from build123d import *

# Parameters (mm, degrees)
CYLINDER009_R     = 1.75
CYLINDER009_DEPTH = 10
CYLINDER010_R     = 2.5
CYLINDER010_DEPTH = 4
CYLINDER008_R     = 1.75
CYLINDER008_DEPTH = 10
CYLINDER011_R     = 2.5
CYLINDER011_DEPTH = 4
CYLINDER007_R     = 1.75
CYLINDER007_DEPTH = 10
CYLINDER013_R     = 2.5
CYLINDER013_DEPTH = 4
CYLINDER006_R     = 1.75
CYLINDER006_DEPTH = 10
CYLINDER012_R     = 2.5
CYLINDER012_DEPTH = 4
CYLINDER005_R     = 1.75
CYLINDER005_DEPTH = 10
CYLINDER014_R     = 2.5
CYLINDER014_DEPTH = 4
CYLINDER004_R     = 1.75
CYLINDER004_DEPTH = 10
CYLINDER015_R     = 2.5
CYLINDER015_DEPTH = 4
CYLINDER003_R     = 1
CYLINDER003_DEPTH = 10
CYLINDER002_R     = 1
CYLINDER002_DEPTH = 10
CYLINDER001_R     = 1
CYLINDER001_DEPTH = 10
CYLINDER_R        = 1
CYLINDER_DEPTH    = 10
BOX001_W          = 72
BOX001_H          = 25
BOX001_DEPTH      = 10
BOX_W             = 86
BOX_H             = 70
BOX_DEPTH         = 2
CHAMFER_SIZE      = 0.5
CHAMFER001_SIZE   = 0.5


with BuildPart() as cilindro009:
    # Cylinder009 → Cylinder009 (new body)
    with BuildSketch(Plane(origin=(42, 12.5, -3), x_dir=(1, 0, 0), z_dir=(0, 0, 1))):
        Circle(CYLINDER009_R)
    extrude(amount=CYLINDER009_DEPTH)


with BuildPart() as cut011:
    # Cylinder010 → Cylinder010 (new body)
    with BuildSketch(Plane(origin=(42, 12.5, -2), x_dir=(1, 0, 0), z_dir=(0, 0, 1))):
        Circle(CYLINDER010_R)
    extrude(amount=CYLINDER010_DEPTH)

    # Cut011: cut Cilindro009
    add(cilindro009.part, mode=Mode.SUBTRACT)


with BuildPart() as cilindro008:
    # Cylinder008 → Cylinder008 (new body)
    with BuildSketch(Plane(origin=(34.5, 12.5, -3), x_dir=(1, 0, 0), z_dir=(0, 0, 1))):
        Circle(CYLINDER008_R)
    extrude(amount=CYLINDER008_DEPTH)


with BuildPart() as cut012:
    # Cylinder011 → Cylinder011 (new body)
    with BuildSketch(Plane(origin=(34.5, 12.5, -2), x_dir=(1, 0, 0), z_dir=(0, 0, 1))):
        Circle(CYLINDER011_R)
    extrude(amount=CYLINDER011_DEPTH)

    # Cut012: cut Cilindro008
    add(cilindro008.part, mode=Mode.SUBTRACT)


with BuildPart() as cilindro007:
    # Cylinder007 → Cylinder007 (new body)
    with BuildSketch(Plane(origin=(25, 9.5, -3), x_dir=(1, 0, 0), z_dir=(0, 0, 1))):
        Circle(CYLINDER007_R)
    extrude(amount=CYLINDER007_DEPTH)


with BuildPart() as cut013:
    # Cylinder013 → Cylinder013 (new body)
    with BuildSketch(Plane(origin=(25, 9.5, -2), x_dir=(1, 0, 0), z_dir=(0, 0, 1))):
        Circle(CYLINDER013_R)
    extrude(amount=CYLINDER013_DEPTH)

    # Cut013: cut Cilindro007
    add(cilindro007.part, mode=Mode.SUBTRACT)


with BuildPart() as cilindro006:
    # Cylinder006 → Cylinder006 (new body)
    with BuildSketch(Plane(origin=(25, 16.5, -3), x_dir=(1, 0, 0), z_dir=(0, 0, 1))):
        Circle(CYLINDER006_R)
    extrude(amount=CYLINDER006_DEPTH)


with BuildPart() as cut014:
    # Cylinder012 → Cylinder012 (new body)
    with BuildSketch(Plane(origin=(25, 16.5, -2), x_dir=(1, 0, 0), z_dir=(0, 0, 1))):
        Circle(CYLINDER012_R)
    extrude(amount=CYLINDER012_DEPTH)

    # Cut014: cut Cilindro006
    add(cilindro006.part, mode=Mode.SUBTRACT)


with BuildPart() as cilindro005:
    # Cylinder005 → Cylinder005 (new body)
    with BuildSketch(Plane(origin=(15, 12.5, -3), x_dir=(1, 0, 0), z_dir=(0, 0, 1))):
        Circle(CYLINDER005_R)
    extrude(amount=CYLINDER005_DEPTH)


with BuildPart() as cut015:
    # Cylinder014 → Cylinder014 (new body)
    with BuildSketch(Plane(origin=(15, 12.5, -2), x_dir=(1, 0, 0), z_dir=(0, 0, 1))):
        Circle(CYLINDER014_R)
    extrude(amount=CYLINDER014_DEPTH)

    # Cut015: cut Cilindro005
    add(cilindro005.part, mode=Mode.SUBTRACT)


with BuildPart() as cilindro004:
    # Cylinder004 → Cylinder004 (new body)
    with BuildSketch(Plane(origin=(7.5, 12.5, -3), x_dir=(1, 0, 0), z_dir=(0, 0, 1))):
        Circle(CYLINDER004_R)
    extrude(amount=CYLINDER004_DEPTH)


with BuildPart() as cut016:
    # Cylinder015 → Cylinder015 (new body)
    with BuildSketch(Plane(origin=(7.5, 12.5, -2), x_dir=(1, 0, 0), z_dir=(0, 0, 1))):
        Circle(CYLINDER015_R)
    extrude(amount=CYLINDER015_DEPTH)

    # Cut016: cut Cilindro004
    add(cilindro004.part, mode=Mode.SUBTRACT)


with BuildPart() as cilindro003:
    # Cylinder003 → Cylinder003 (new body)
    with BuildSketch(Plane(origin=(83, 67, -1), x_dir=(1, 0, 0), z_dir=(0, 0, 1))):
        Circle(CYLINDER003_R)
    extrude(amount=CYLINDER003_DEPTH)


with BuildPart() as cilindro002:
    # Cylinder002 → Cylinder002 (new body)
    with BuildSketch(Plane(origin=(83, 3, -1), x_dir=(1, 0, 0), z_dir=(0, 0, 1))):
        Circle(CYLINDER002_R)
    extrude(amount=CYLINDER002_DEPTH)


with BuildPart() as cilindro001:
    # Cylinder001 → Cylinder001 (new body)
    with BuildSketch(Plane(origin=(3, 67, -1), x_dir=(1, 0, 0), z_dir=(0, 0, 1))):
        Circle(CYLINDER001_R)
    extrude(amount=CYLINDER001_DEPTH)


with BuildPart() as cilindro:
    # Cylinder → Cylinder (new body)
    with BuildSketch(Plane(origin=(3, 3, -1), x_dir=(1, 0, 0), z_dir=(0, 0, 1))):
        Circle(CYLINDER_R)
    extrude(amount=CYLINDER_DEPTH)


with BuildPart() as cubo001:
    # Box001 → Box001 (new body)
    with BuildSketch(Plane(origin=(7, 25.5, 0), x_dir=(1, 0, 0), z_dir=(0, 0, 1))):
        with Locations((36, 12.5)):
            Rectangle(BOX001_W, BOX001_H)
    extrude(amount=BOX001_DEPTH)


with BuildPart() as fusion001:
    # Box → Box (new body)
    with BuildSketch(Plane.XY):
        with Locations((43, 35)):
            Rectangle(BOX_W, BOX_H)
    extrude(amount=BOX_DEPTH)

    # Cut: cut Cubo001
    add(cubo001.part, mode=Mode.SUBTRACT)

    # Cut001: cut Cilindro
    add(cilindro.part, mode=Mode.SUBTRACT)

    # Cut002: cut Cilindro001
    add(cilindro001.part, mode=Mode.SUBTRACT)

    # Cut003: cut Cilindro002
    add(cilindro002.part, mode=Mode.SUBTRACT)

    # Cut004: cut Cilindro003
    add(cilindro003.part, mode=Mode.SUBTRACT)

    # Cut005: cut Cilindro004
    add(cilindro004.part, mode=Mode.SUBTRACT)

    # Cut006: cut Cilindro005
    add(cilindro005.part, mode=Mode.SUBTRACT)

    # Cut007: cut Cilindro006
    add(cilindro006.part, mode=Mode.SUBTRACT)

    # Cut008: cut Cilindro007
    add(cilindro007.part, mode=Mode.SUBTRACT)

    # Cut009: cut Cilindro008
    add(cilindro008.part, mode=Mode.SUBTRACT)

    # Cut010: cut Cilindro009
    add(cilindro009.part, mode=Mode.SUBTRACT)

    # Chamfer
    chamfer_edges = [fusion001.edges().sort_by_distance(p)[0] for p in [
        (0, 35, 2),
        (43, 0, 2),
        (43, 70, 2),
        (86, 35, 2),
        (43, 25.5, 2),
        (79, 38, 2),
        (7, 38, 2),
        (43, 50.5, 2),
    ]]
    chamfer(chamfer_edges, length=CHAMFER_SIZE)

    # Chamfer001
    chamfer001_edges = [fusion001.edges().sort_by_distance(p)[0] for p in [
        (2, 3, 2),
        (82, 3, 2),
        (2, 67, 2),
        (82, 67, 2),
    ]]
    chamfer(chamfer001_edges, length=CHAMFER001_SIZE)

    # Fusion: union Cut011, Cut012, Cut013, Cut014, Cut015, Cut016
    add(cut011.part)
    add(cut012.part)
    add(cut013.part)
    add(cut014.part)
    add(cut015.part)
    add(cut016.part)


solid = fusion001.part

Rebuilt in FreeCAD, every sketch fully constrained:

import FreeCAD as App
import Part
import Sketcher

V = App.Vector


def edges_at(feature, points):
    """Names of the edges that pass closest to the given points."""
    edges = feature.Shape.Edges
    near = lambda p: min(range(len(edges)), key=lambda i: edges[i].distToShape(Part.Vertex(*p))[0])
    return sorted({f"Edge{near(p) + 1}" for p in points})


def add_polygon(sketch, points):
    """Adds a closed chain of lines whose ends are joined by coincident constraints."""
    first, n = sketch.GeometryCount, len(points)
    for a, b in zip(points, points[1:] + points[:1]):
        sketch.addGeometry(Part.LineSegment(App.Vector(*a, 0), App.Vector(*b, 0)), False)
    for i in range(n):
        sketch.addConstraint(Sketcher.Constraint("Coincident", first + i, 2, first + (i + 1) % n, 1))

doc = App.newDocument("Part")
body = doc.addObject("PartDesign::Body", "Body")

sketch1 = body.newObject("Sketcher::SketchObject", "Sketch")
sketch1.AttachmentSupport = (doc.getObject("XY_Plane"), [""])
sketch1.MapMode = "FlatFace"
sketch1.AttachmentOffset = App.Placement(V(0, 0, -3), App.Rotation())
sketch1.addGeometry(Part.Circle(V(42, 12.5, 0), V(0, 0, 1), 1.8), False)
sketch1.addConstraint(Sketcher.Constraint("Diameter", 0, 3.5))
sketch1.addConstraint(Sketcher.Constraint("DistanceX", -1, 1, 0, 3, 42.0))
sketch1.addConstraint(Sketcher.Constraint("DistanceY", -1, 1, 0, 3, 12.5))
pad1 = body.newObject("PartDesign::Pad", "Pad")
pad1.Profile = sketch1
pad1.Length = 10
body2 = doc.addObject("PartDesign::Body", "Body001")

sketch2 = body2.newObject("Sketcher::SketchObject", "Sketch001")
sketch2.AttachmentSupport = (doc.getObject("XY_Plane001"), [""])
sketch2.MapMode = "FlatFace"
sketch2.AttachmentOffset = App.Placement(V(0, 0, -2), App.Rotation())
sketch2.addGeometry(Part.Circle(V(42, 12.5, 0), V(0, 0, 1), 2.5), False)
sketch2.addConstraint(Sketcher.Constraint("Diameter", 0, 5.0))
sketch2.addConstraint(Sketcher.Constraint("DistanceX", -1, 1, 0, 3, 42.0))
sketch2.addConstraint(Sketcher.Constraint("DistanceY", -1, 1, 0, 3, 12.5))
pad2 = body2.newObject("PartDesign::Pad", "Pad001")
pad2.Profile = sketch2
pad2.Length = 4
doc.recompute()

body3 = doc.addObject("PartDesign::Body", "Body002")
body3.BaseFeature = body
boolean = body2.newObject("PartDesign::Boolean", "Boolean")
boolean.Type = "Cut"
boolean.addObjects([body3])
doc.recompute()
body4 = doc.addObject("PartDesign::Body", "Body003")

sketch3 = body4.newObject("Sketcher::SketchObject", "Sketch002")
sketch3.AttachmentSupport = (doc.getObject("XY_Plane003"), [""])
sketch3.MapMode = "FlatFace"
sketch3.AttachmentOffset = App.Placement(V(0, 0, -3), App.Rotation())
sketch3.addGeometry(Part.Circle(V(34.5, 12.5, 0), V(0, 0, 1), 1.8), False)
sketch3.addConstraint(Sketcher.Constraint("Diameter", 0, 3.5))
sketch3.addConstraint(Sketcher.Constraint("DistanceX", -1, 1, 0, 3, 34.5))
sketch3.addConstraint(Sketcher.Constraint("DistanceY", -1, 1, 0, 3, 12.5))
pad3 = body4.newObject("PartDesign::Pad", "Pad002")
pad3.Profile = sketch3
pad3.Length = 10
body5 = doc.addObject("PartDesign::Body", "Body004")

sketch4 = body5.newObject("Sketcher::SketchObject", "Sketch003")
sketch4.AttachmentSupport = (doc.getObject("XY_Plane004"), [""])
sketch4.MapMode = "FlatFace"
sketch4.AttachmentOffset = App.Placement(V(0, 0, -2), App.Rotation())
sketch4.addGeometry(Part.Circle(V(34.5, 12.5, 0), V(0, 0, 1), 2.5), False)
sketch4.addConstraint(Sketcher.Constraint("Diameter", 0, 5.0))
sketch4.addConstraint(Sketcher.Constraint("DistanceX", -1, 1, 0, 3, 34.5))
sketch4.addConstraint(Sketcher.Constraint("DistanceY", -1, 1, 0, 3, 12.5))
pad4 = body5.newObject("PartDesign::Pad", "Pad003")
pad4.Profile = sketch4
pad4.Length = 4
doc.recompute()

body6 = doc.addObject("PartDesign::Body", "Body005")
body6.BaseFeature = body4
boolean2 = body5.newObject("PartDesign::Boolean", "Boolean001")
boolean2.Type = "Cut"
boolean2.addObjects([body6])
doc.recompute()
body7 = doc.addObject("PartDesign::Body", "Body006")

sketch5 = body7.newObject("Sketcher::SketchObject", "Sketch004")
sketch5.AttachmentSupport = (doc.getObject("XY_Plane006"), [""])
sketch5.MapMode = "FlatFace"
sketch5.AttachmentOffset = App.Placement(V(0, 0, -3), App.Rotation())
sketch5.addGeometry(Part.Circle(V(25, 9.5, 0), V(0, 0, 1), 1.8), False)
sketch5.addConstraint(Sketcher.Constraint("Diameter", 0, 3.5))
sketch5.addConstraint(Sketcher.Constraint("DistanceX", -1, 1, 0, 3, 25.0))
sketch5.addConstraint(Sketcher.Constraint("DistanceY", -1, 1, 0, 3, 9.5))
pad5 = body7.newObject("PartDesign::Pad", "Pad004")
pad5.Profile = sketch5
pad5.Length = 10
body8 = doc.addObject("PartDesign::Body", "Body007")

sketch6 = body8.newObject("Sketcher::SketchObject", "Sketch005")
sketch6.AttachmentSupport = (doc.getObject("XY_Plane007"), [""])
sketch6.MapMode = "FlatFace"
sketch6.AttachmentOffset = App.Placement(V(0, 0, -2), App.Rotation())
sketch6.addGeometry(Part.Circle(V(25, 9.5, 0), V(0, 0, 1), 2.5), False)
sketch6.addConstraint(Sketcher.Constraint("Diameter", 0, 5.0))
sketch6.addConstraint(Sketcher.Constraint("DistanceX", -1, 1, 0, 3, 25.0))
sketch6.addConstraint(Sketcher.Constraint("DistanceY", -1, 1, 0, 3, 9.5))
pad6 = body8.newObject("PartDesign::Pad", "Pad005")
pad6.Profile = sketch6
pad6.Length = 4
doc.recompute()

body9 = doc.addObject("PartDesign::Body", "Body008")
body9.BaseFeature = body7
boolean3 = body8.newObject("PartDesign::Boolean", "Boolean002")
boolean3.Type = "Cut"
boolean3.addObjects([body9])
doc.recompute()
body10 = doc.addObject("PartDesign::Body", "Body009")

sketch7 = body10.newObject("Sketcher::SketchObject", "Sketch006")
sketch7.AttachmentSupport = (doc.getObject("XY_Plane009"), [""])
sketch7.MapMode = "FlatFace"
sketch7.AttachmentOffset = App.Placement(V(0, 0, -3), App.Rotation())
sketch7.addGeometry(Part.Circle(V(25, 16.5, 0), V(0, 0, 1), 1.8), False)
sketch7.addConstraint(Sketcher.Constraint("Diameter", 0, 3.5))
sketch7.addConstraint(Sketcher.Constraint("DistanceX", -1, 1, 0, 3, 25.0))
sketch7.addConstraint(Sketcher.Constraint("DistanceY", -1, 1, 0, 3, 16.5))
pad7 = body10.newObject("PartDesign::Pad", "Pad006")
pad7.Profile = sketch7
pad7.Length = 10
body11 = doc.addObject("PartDesign::Body", "Body010")

sketch8 = body11.newObject("Sketcher::SketchObject", "Sketch007")
sketch8.AttachmentSupport = (doc.getObject("XY_Plane010"), [""])
sketch8.MapMode = "FlatFace"
sketch8.AttachmentOffset = App.Placement(V(0, 0, -2), App.Rotation())
sketch8.addGeometry(Part.Circle(V(25, 16.5, 0), V(0, 0, 1), 2.5), False)
sketch8.addConstraint(Sketcher.Constraint("Diameter", 0, 5.0))
sketch8.addConstraint(Sketcher.Constraint("DistanceX", -1, 1, 0, 3, 25.0))
sketch8.addConstraint(Sketcher.Constraint("DistanceY", -1, 1, 0, 3, 16.5))
pad8 = body11.newObject("PartDesign::Pad", "Pad007")
pad8.Profile = sketch8
pad8.Length = 4
doc.recompute()

body12 = doc.addObject("PartDesign::Body", "Body011")
body12.BaseFeature = body10
boolean4 = body11.newObject("PartDesign::Boolean", "Boolean003")
boolean4.Type = "Cut"
boolean4.addObjects([body12])
doc.recompute()
body13 = doc.addObject("PartDesign::Body", "Body012")

sketch9 = body13.newObject("Sketcher::SketchObject", "Sketch008")
sketch9.AttachmentSupport = (doc.getObject("XY_Plane012"), [""])
sketch9.MapMode = "FlatFace"
sketch9.AttachmentOffset = App.Placement(V(0, 0, -3), App.Rotation())
sketch9.addGeometry(Part.Circle(V(15, 12.5, 0), V(0, 0, 1), 1.8), False)
sketch9.addConstraint(Sketcher.Constraint("Diameter", 0, 3.5))
sketch9.addConstraint(Sketcher.Constraint("DistanceX", -1, 1, 0, 3, 15.0))
sketch9.addConstraint(Sketcher.Constraint("DistanceY", -1, 1, 0, 3, 12.5))
pad9 = body13.newObject("PartDesign::Pad", "Pad008")
pad9.Profile = sketch9
pad9.Length = 10
body14 = doc.addObject("PartDesign::Body", "Body013")

sketch10 = body14.newObject("Sketcher::SketchObject", "Sketch009")
sketch10.AttachmentSupport = (doc.getObject("XY_Plane013"), [""])
sketch10.MapMode = "FlatFace"
sketch10.AttachmentOffset = App.Placement(V(0, 0, -2), App.Rotation())
sketch10.addGeometry(Part.Circle(V(15, 12.5, 0), V(0, 0, 1), 2.5), False)
sketch10.addConstraint(Sketcher.Constraint("Diameter", 0, 5.0))
sketch10.addConstraint(Sketcher.Constraint("DistanceX", -1, 1, 0, 3, 15.0))
sketch10.addConstraint(Sketcher.Constraint("DistanceY", -1, 1, 0, 3, 12.5))
pad10 = body14.newObject("PartDesign::Pad", "Pad009")
pad10.Profile = sketch10
pad10.Length = 4
doc.recompute()

body15 = doc.addObject("PartDesign::Body", "Body014")
body15.BaseFeature = body13
boolean5 = body14.newObject("PartDesign::Boolean", "Boolean004")
boolean5.Type = "Cut"
boolean5.addObjects([body15])
doc.recompute()
body16 = doc.addObject("PartDesign::Body", "Body015")

sketch11 = body16.newObject("Sketcher::SketchObject", "Sketch010")
sketch11.AttachmentSupport = (doc.getObject("XY_Plane015"), [""])
sketch11.MapMode = "FlatFace"
sketch11.AttachmentOffset = App.Placement(V(0, 0, -3), App.Rotation())
sketch11.addGeometry(Part.Circle(V(7.5, 12.5, 0), V(0, 0, 1), 1.8), False)
sketch11.addConstraint(Sketcher.Constraint("Diameter", 0, 3.5))
sketch11.addConstraint(Sketcher.Constraint("DistanceX", -1, 1, 0, 3, 7.5))
sketch11.addConstraint(Sketcher.Constraint("DistanceY", -1, 1, 0, 3, 12.5))
pad11 = body16.newObject("PartDesign::Pad", "Pad010")
pad11.Profile = sketch11
pad11.Length = 10
body17 = doc.addObject("PartDesign::Body", "Body016")

sketch12 = body17.newObject("Sketcher::SketchObject", "Sketch011")
sketch12.AttachmentSupport = (doc.getObject("XY_Plane016"), [""])
sketch12.MapMode = "FlatFace"
sketch12.AttachmentOffset = App.Placement(V(0, 0, -2), App.Rotation())
sketch12.addGeometry(Part.Circle(V(7.5, 12.5, 0), V(0, 0, 1), 2.5), False)
sketch12.addConstraint(Sketcher.Constraint("Diameter", 0, 5.0))
sketch12.addConstraint(Sketcher.Constraint("DistanceX", -1, 1, 0, 3, 7.5))
sketch12.addConstraint(Sketcher.Constraint("DistanceY", -1, 1, 0, 3, 12.5))
pad12 = body17.newObject("PartDesign::Pad", "Pad011")
pad12.Profile = sketch12
pad12.Length = 4
doc.recompute()

body18 = doc.addObject("PartDesign::Body", "Body017")
body18.BaseFeature = body16
boolean6 = body17.newObject("PartDesign::Boolean", "Boolean005")
boolean6.Type = "Cut"
boolean6.addObjects([body18])
doc.recompute()
body19 = doc.addObject("PartDesign::Body", "Body018")

sketch13 = body19.newObject("Sketcher::SketchObject", "Sketch012")
sketch13.AttachmentSupport = (doc.getObject("XY_Plane018"), [""])
sketch13.MapMode = "FlatFace"
sketch13.AttachmentOffset = App.Placement(V(0, 0, -1), App.Rotation())
sketch13.addGeometry(Part.Circle(V(83, 67, 0), V(0, 0, 1), 1), False)
sketch13.addConstraint(Sketcher.Constraint("Diameter", 0, 2.0))
sketch13.addConstraint(Sketcher.Constraint("DistanceX", -1, 1, 0, 3, 83.0))
sketch13.addConstraint(Sketcher.Constraint("DistanceY", -1, 1, 0, 3, 67.0))
pad13 = body19.newObject("PartDesign::Pad", "Pad012")
pad13.Profile = sketch13
pad13.Length = 10
body20 = doc.addObject("PartDesign::Body", "Body019")

sketch14 = body20.newObject("Sketcher::SketchObject", "Sketch013")
sketch14.AttachmentSupport = (doc.getObject("XY_Plane019"), [""])
sketch14.MapMode = "FlatFace"
sketch14.AttachmentOffset = App.Placement(V(0, 0, -1), App.Rotation())
sketch14.addGeometry(Part.Circle(V(83, 3, 0), V(0, 0, 1), 1), False)
sketch14.addConstraint(Sketcher.Constraint("Diameter", 0, 2.0))
sketch14.addConstraint(Sketcher.Constraint("DistanceX", -1, 1, 0, 3, 83.0))
sketch14.addConstraint(Sketcher.Constraint("DistanceY", -1, 1, 0, 3, 3.0))
pad14 = body20.newObject("PartDesign::Pad", "Pad013")
pad14.Profile = sketch14
pad14.Length = 10
body21 = doc.addObject("PartDesign::Body", "Body020")

sketch15 = body21.newObject("Sketcher::SketchObject", "Sketch014")
sketch15.AttachmentSupport = (doc.getObject("XY_Plane020"), [""])
sketch15.MapMode = "FlatFace"
sketch15.AttachmentOffset = App.Placement(V(0, 0, -1), App.Rotation())
sketch15.addGeometry(Part.Circle(V(3, 67, 0), V(0, 0, 1), 1), False)
sketch15.addConstraint(Sketcher.Constraint("Diameter", 0, 2.0))
sketch15.addConstraint(Sketcher.Constraint("DistanceX", -1, 1, 0, 3, 3.0))
sketch15.addConstraint(Sketcher.Constraint("DistanceY", -1, 1, 0, 3, 67.0))
pad15 = body21.newObject("PartDesign::Pad", "Pad014")
pad15.Profile = sketch15
pad15.Length = 10
body22 = doc.addObject("PartDesign::Body", "Body021")

sketch16 = body22.newObject("Sketcher::SketchObject", "Sketch015")
sketch16.AttachmentSupport = (doc.getObject("XY_Plane021"), [""])
sketch16.MapMode = "FlatFace"
sketch16.AttachmentOffset = App.Placement(V(0, 0, -1), App.Rotation())
sketch16.addGeometry(Part.Circle(V(3, 3, 0), V(0, 0, 1), 1), False)
sketch16.addConstraint(Sketcher.Constraint("Diameter", 0, 2.0))
sketch16.addConstraint(Sketcher.Constraint("DistanceX", -1, 1, 0, 3, 3.0))
sketch16.addConstraint(Sketcher.Constraint("DistanceY", -1, 1, 0, 3, 3.0))
pad16 = body22.newObject("PartDesign::Pad", "Pad015")
pad16.Profile = sketch16
pad16.Length = 10
body23 = doc.addObject("PartDesign::Body", "Body022")

sketch17 = body23.newObject("Sketcher::SketchObject", "Sketch016")
sketch17.AttachmentSupport = (doc.getObject("XY_Plane022"), [""])
sketch17.MapMode = "FlatFace"
add_polygon(sketch17, [(7, 50), (7, 26), (79, 26), (79, 50)])
sketch17.addConstraint(Sketcher.Constraint("Vertical", 0))
sketch17.addConstraint(Sketcher.Constraint("Horizontal", 1))
sketch17.addConstraint(Sketcher.Constraint("Vertical", 2))
sketch17.addConstraint(Sketcher.Constraint("Horizontal", 3))
sketch17.addConstraint(Sketcher.Constraint("DistanceX", 1, 1, 1, 2, 72.0))
sketch17.addConstraint(Sketcher.Constraint("DistanceY", 0, 2, 0, 1, 25.0))
sketch17.addConstraint(Sketcher.Constraint("DistanceX", -1, 1, 0, 2, 7.0))
sketch17.addConstraint(Sketcher.Constraint("DistanceY", -1, 1, 0, 2, 25.5))
pad17 = body23.newObject("PartDesign::Pad", "Pad016")
pad17.Profile = sketch17
pad17.Length = 10
body24 = doc.addObject("PartDesign::Body", "Body023")

sketch18 = body24.newObject("Sketcher::SketchObject", "Sketch017")
sketch18.AttachmentSupport = (doc.getObject("XY_Plane023"), [""])
sketch18.MapMode = "FlatFace"
add_polygon(sketch18, [(0, 70), (0, 0), (86, 0), (86, 70)])
sketch18.addConstraint(Sketcher.Constraint("Vertical", 0))
sketch18.addConstraint(Sketcher.Constraint("Horizontal", 1))
sketch18.addConstraint(Sketcher.Constraint("Vertical", 2))
sketch18.addConstraint(Sketcher.Constraint("Horizontal", 3))
sketch18.addConstraint(Sketcher.Constraint("Coincident", 0, 2, -1, 1))
sketch18.addConstraint(Sketcher.Constraint("DistanceX", 1, 1, 1, 2, 86.0))
sketch18.addConstraint(Sketcher.Constraint("DistanceY", 0, 2, 0, 1, 70.0))
pad18 = body24.newObject("PartDesign::Pad", "Pad017")
pad18.Profile = sketch18
pad18.Length = 2
doc.recompute()

boolean7 = body24.newObject("PartDesign::Boolean", "Boolean006")
boolean7.Type = "Cut"
boolean7.addObjects([body23])
doc.recompute()

boolean8 = body24.newObject("PartDesign::Boolean", "Boolean007")
boolean8.Type = "Cut"
boolean8.addObjects([body22])
doc.recompute()

boolean9 = body24.newObject("PartDesign::Boolean", "Boolean008")
boolean9.Type = "Cut"
boolean9.addObjects([body21])
doc.recompute()

boolean10 = body24.newObject("PartDesign::Boolean", "Boolean009")
boolean10.Type = "Cut"
boolean10.addObjects([body20])
doc.recompute()

boolean11 = body24.newObject("PartDesign::Boolean", "Boolean010")
boolean11.Type = "Cut"
boolean11.addObjects([body19])
doc.recompute()

boolean12 = body24.newObject("PartDesign::Boolean", "Boolean011")
boolean12.Type = "Cut"
boolean12.addObjects([body16])
doc.recompute()

boolean13 = body24.newObject("PartDesign::Boolean", "Boolean012")
boolean13.Type = "Cut"
boolean13.addObjects([body13])
doc.recompute()

boolean14 = body24.newObject("PartDesign::Boolean", "Boolean013")
boolean14.Type = "Cut"
boolean14.addObjects([body10])
doc.recompute()

boolean15 = body24.newObject("PartDesign::Boolean", "Boolean014")
boolean15.Type = "Cut"
boolean15.addObjects([body7])
doc.recompute()

boolean16 = body24.newObject("PartDesign::Boolean", "Boolean015")
boolean16.Type = "Cut"
boolean16.addObjects([body4])
doc.recompute()

boolean17 = body24.newObject("PartDesign::Boolean", "Boolean016")
boolean17.Type = "Cut"
boolean17.addObjects([body])
doc.recompute()

chamfer = body24.newObject("PartDesign::Chamfer", "Chamfer")
chamfer.Base = (boolean17, edges_at(boolean17, [
    (0, 35, 2),
    (43, 0, 2),
    (43, 70, 2),
    (86, 35, 2),
    (43, 25.5, 2),
    (79, 38, 2),
    (7, 38, 2),
    (43, 50.5, 2),
]))
chamfer.Size = 0.5
doc.recompute()

chamfer2 = body24.newObject("PartDesign::Chamfer", "Chamfer001")
chamfer2.Base = (chamfer, edges_at(chamfer, [
    (2, 3, 2),
    (82, 3, 2),
    (2, 67, 2),
    (82, 67, 2),
]))
chamfer2.Size = 0.5
doc.recompute()

boolean18 = body24.newObject("PartDesign::Boolean", "Boolean017")
boolean18.Type = "Fuse"
boolean18.addObjects([body2])
doc.recompute()

boolean19 = body24.newObject("PartDesign::Boolean", "Boolean018")
boolean19.Type = "Fuse"
boolean19.addObjects([body5])
doc.recompute()

boolean20 = body24.newObject("PartDesign::Boolean", "Boolean019")
boolean20.Type = "Fuse"
boolean20.addObjects([body8])
doc.recompute()

boolean21 = body24.newObject("PartDesign::Boolean", "Boolean020")
boolean21.Type = "Fuse"
boolean21.addObjects([body11])
doc.recompute()

boolean22 = body24.newObject("PartDesign::Boolean", "Boolean021")
boolean22.Type = "Fuse"
boolean22.addObjects([body14])
doc.recompute()

boolean23 = body24.newObject("PartDesign::Boolean", "Boolean022")
boolean23.Type = "Fuse"
boolean23.addObjects([body17])

doc.recompute()
